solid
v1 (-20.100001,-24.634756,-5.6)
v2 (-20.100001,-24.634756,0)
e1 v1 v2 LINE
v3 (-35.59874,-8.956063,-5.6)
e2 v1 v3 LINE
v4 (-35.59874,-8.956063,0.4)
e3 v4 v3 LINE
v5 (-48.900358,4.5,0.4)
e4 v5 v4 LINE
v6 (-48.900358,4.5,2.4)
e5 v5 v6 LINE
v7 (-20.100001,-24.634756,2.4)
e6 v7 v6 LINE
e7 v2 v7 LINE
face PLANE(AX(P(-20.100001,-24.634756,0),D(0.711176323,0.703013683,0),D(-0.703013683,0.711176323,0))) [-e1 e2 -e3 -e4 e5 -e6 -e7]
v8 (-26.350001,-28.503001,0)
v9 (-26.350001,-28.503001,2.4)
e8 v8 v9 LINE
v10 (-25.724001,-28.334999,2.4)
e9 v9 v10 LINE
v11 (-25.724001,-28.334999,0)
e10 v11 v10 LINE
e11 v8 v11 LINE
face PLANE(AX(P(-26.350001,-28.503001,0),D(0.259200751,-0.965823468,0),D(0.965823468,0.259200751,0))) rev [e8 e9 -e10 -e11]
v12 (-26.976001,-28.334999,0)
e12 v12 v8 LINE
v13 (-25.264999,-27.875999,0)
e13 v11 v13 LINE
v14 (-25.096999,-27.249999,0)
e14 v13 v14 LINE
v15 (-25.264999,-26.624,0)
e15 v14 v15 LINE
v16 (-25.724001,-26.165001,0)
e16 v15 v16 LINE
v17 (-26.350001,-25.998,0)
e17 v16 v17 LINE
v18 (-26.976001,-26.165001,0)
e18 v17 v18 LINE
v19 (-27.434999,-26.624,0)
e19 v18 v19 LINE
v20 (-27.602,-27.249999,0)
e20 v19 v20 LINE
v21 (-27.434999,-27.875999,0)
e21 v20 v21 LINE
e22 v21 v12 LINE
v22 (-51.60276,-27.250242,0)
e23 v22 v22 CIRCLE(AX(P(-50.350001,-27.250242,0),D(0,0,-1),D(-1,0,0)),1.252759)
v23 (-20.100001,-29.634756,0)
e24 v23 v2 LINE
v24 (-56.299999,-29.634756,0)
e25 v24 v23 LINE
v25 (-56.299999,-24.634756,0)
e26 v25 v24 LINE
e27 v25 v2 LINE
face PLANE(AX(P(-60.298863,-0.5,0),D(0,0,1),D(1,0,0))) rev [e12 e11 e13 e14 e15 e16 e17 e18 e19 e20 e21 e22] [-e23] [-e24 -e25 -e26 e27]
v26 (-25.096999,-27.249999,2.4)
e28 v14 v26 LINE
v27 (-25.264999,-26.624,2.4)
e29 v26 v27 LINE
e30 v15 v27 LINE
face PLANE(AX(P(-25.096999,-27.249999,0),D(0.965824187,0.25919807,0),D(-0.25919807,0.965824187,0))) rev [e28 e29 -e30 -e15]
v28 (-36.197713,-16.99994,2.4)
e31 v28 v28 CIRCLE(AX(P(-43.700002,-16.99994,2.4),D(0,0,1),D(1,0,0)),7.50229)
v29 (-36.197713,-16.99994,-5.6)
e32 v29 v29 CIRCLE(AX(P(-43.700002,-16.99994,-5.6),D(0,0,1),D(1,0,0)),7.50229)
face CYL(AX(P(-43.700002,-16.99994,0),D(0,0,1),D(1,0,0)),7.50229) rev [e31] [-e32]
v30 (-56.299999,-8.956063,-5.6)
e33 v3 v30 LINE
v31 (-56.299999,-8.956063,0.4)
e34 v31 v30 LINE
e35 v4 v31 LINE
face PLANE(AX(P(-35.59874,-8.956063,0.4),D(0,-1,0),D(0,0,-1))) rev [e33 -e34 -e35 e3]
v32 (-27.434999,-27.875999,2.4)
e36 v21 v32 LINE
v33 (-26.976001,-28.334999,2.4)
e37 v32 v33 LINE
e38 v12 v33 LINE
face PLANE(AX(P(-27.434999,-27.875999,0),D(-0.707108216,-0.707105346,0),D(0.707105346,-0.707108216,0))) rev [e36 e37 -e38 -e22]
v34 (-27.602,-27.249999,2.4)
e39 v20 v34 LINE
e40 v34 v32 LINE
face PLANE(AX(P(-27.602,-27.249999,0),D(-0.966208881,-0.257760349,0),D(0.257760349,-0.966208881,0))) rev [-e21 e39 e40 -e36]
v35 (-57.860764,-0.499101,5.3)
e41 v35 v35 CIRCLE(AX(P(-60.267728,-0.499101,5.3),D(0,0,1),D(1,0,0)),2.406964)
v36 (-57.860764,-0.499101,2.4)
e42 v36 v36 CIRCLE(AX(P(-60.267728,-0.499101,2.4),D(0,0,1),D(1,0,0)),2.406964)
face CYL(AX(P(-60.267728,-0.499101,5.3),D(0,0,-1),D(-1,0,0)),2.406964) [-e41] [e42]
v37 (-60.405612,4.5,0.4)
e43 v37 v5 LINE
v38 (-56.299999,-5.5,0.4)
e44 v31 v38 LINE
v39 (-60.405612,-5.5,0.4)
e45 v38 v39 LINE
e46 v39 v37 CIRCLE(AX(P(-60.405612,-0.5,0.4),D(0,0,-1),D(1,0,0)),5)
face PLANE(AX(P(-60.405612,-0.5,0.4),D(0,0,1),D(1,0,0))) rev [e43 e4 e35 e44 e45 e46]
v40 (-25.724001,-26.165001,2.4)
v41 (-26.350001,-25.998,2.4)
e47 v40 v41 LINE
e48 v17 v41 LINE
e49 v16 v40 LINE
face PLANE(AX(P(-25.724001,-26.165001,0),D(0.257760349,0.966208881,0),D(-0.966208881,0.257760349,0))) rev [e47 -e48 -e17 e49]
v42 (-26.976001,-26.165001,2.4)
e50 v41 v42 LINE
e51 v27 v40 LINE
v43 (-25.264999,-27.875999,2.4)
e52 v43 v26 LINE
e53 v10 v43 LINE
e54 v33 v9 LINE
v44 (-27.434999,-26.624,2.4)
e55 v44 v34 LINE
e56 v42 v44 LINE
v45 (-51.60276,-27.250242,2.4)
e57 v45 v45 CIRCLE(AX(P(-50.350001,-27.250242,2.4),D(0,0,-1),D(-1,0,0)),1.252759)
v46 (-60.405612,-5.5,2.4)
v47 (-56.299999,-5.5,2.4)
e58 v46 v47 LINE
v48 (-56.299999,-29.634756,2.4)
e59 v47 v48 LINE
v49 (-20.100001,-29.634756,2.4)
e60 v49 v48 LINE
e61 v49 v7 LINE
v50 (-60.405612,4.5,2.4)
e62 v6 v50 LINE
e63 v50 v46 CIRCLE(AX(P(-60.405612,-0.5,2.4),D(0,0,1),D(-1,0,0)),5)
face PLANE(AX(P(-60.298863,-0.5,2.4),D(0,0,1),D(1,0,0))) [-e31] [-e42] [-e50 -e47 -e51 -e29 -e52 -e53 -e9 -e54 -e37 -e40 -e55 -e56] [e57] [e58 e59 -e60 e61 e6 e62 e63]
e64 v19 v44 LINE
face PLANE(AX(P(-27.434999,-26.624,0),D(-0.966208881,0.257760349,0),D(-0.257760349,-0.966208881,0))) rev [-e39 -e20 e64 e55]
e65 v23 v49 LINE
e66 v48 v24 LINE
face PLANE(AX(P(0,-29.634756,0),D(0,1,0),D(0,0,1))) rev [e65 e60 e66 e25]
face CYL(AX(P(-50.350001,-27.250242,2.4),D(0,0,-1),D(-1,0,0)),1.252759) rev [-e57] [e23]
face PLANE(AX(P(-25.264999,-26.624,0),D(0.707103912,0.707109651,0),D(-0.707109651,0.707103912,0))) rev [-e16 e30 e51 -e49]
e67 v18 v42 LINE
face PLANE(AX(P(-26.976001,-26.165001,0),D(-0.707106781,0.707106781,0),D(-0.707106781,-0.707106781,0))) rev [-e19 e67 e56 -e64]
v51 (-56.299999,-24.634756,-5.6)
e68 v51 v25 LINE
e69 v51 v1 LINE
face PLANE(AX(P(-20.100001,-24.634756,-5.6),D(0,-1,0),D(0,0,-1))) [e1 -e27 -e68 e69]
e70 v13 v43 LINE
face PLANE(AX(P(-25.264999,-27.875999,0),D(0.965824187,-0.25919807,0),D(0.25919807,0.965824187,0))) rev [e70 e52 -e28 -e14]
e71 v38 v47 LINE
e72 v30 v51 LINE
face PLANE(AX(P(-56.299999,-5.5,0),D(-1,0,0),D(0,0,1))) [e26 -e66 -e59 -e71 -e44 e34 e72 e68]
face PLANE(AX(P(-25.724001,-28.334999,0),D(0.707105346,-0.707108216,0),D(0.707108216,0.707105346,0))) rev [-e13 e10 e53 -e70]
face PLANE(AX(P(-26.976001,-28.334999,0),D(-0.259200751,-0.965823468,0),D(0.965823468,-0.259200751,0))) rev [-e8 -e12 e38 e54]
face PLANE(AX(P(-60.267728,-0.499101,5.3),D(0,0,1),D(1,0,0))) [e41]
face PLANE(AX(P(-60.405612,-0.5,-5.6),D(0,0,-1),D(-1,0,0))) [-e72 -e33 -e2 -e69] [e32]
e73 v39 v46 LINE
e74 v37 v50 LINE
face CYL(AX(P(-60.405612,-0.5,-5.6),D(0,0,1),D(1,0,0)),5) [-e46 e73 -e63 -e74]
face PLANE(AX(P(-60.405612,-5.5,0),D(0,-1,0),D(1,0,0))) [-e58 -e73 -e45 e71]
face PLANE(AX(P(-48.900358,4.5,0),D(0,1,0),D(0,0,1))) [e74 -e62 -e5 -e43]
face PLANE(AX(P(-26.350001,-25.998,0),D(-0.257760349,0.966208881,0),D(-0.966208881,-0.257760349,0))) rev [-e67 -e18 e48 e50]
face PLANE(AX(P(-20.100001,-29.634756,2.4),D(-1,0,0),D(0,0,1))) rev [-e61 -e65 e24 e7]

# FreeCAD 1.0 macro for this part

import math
import FreeCAD as App
import Part
import Sketcher

V = App.Vector
Q = App.Units.Quantity


def add_polygon(sketch, points):
    """Adds a closed chain of lines whose ends are joined by coincident constraints."""
    first, n = sketch.GeometryCount, len(points)
    for a, b in zip(points, points[1:] + points[:1]):
        sketch.addGeometry(Part.LineSegment(App.Vector(*a, 0), App.Vector(*b, 0)), False)
    for i in range(n):
        sketch.addConstraint(Sketcher.Constraint("Coincident", first + i, 2, first + (i + 1) % n, 1))

doc = App.newDocument("Part")
body = doc.addObject("PartDesign::Body", "Body")

sketch1 = body.newObject("Sketcher::SketchObject", "Sketch")
sketch1.AttachmentSupport = (doc.getObject("XY_Plane"), [""])
sketch1.MapMode = "FlatFace"
sketch1.AttachmentOffset = App.Placement(V(0, 0, 2.4), App.Rotation())
sketch1.addGeometry([
    Part.LineSegment(V(-20.1, -24.6, 0), V(-48.9, 4.5, 0)),
    Part.LineSegment(V(-48.9, 4.5, 0), V(-60.4, 4.5, 0)),
    Part.ArcOfCircle(Part.Circle(V(-60.3, -0.5, 0), V(0, 0, 1), 5), math.radians(91), math.radians(269)),
    Part.LineSegment(V(-60.4, -5.5, 0), V(-56.3, -5.5, 0)),
    Part.LineSegment(V(-56.3, -5.5, 0), V(-56.3, -24.6, 0)),
    Part.LineSegment(V(-56.3, -24.6, 0), V(-20.1, -24.6, 0)),
], False)
sketch1.addConstraint([
    Sketcher.Constraint("Coincident", 0, 2, 1, 1),
    Sketcher.Constraint("Coincident", 1, 2, 2, 1),
    Sketcher.Constraint("Coincident", 2, 2, 3, 1),
    Sketcher.Constraint("Coincident", 3, 2, 4, 1),
    Sketcher.Constraint("Coincident", 4, 2, 5, 1),
    Sketcher.Constraint("Coincident", 5, 2, 0, 1),
    Sketcher.Constraint("Horizontal", 1),
    Sketcher.Constraint("Horizontal", 3),
    Sketcher.Constraint("Vertical", 4),
    Sketcher.Constraint("Horizontal", 5),
    Sketcher.Constraint("Vertical", 1, 2, 2, 2),
    Sketcher.Constraint("DistanceX", 5, 1, 5, 2, Q("36.199998 mm")),
    Sketcher.Constraint("DistanceY", 2, 3, 0, 2, Q("5 mm")),
    Sketcher.Constraint("DistanceY", 2, 3, -1, 1, Q("0.5 mm")),
    Sketcher.Constraint("DistanceX", 3, 2, -1, 1, Q("56.299999 mm")),
    Sketcher.Constraint("Radius", 2, Q("5.001139 mm")),
    Sketcher.Constraint("DistanceX", 1, 2, 1, 1, Q("11.505254 mm")),
    Sketcher.Constraint("DistanceX", 3, 1, 3, 2, Q("4.105613 mm")),
    Sketcher.Constraint("DistanceY", 4, 2, 4, 1, Q("19.134756 mm")),
])
pad1 = body.newObject("PartDesign::Pad", "Pad")
pad1.Profile = sketch1
pad1.Length = 2.4
pad1.Reversed = True

sketch2 = body.newObject("Sketcher::SketchObject", "Sketch001")
sketch2.AttachmentSupport = (doc.getObject("XZ_Plane"), [""])
sketch2.MapMode = "FlatFace"
sketch2.AttachmentOffset = App.Placement(V(0, 0, 24.634756), App.Rotation())
add_polygon(sketch2, [(-20.1, 0), (-20.1, 2.4), (-56.3, 2.4), (-56.3, 0)])
sketch2.addConstraint([
    Sketcher.Constraint("Vertical", 0),
    Sketcher.Constraint("Horizontal", 1),
    Sketcher.Constraint("Vertical", 2),
    Sketcher.Constraint("Horizontal", 3),
    Sketcher.Constraint("PointOnObject", 2, 2, -1),
    Sketcher.Constraint("DistanceX", 1, 2, 1, 1, Q("36.199998 mm")),
    Sketcher.Constraint("DistanceY", 0, 1, 0, 2, Q("2.4 mm")),
    Sketcher.Constraint("DistanceX", 0, 2, -1, 1, Q("20.100001 mm")),
])
pad2 = body.newObject("PartDesign::Pad", "Pad001")
pad2.Profile = sketch2
pad2.Length = 5

sketch3 = body.newObject("Sketcher::SketchObject", "Sketch002")
sketch3.AttachmentSupport = (doc.getObject("XY_Plane"), [""])
sketch3.MapMode = "FlatFace"
sketch3.AttachmentOffset = App.Placement(V(0, 0, 2.4), App.Rotation())
sketch3.addGeometry(Part.Circle(V(-44, -17, 0), V(0, 0, 1), 8), False)
sketch3.addConstraint([
    Sketcher.Constraint("Diameter", 0, Q("15.004579 mm")),
    Sketcher.Constraint("DistanceY", 0, 3, -1, 1, Q("16.99994 mm")),
    Sketcher.Constraint("DistanceX", 0, 3, -1, 1, Q("43.700002 mm")),
])
pocket1 = body.newObject("PartDesign::Pocket", "Pocket")
pocket1.Profile = sketch3
pocket1.Type = "ThroughAll"

sketch4 = body.newObject("Sketcher::SketchObject", "Sketch003")
sketch4.AttachmentSupport = (doc.getObject("XY_Plane"), [""])
sketch4.MapMode = "FlatFace"
sketch4.AttachmentOffset = App.Placement(V(0, 0, 2.4), App.Rotation())
add_polygon(sketch4, [(-26.4, -28.5), (-25.7, -28.3), (-25.3, -27.9), (-25.1, -27.2), (-25.3, -26.6), (-25.7, -26.2), (-26.4, -26), (-27, -26.2), (-27.4, -26.6), (-27.6, -27.2), (-27.4, -27.9), (-27, -28.3)])
sketch4.addConstraint([
    Sketcher.Constraint("Perpendicular", 5, 8),
    Sketcher.Constraint("Perpendicular", 6, 9),
    Sketcher.Constraint("Perpendicular", 1, 10),
    Sketcher.Constraint("Horizontal", 4, 2, 6, 2),
    Sketcher.Constraint("Horizontal", 3, 2, 7, 2),
    Sketcher.Constraint("Horizontal", 2, 2, 8, 2),
    Sketcher.Constraint("Horizontal", 1, 2, 9, 2),
    Sketcher.Constraint("Horizontal", 0, 2, 10, 2),
    Sketcher.Constraint("Vertical", 1, 2, 3, 2),
    Sketcher.Constraint("Vertical", 0, 2, 4, 2),
    Sketcher.Constraint("Vertical", 7, 2, 9, 2),
    Sketcher.Constraint("Vertical", 6, 2, 10, 2),
    Sketcher.Constraint("Vertical", 5, 2, 11, 2),
    Sketcher.Constraint("Equal", 0, 2),
    Sketcher.Constraint("Equal", 2, 3),
    Sketcher.Constraint("Equal", 1, 4),
    Sketcher.Constraint("Equal", 6, 8),
    Sketcher.Constraint("Equal", 4, 10),
    Sketcher.Constraint("DistanceY", 2, 2, -1, 1, Q("27.249999 mm")),
    Sketcher.Constraint("DistanceX", 5, 2, -1, 1, Q("26.350001 mm")),
    Sketcher.Constraint("DistanceY", 0, 2, 4, 2, Q("2.169998 mm")),
    Sketcher.Constraint("DistanceX", 0, 2, -1, 1, Q("25.724001 mm")),
    Sketcher.Constraint("DistanceX", 2, 2, -1, 1, Q("25.096999 mm")),
    Sketcher.Constraint("DistanceY", 5, 2, -1, 1, Q("25.998 mm")),
])
pocket2 = body.newObject("PartDesign::Pocket", "Pocket001")
pocket2.Profile = sketch4
pocket2.Type = "ThroughAll"

sketch5 = body.newObject("Sketcher::SketchObject", "Sketch004")
sketch5.AttachmentSupport = (doc.getObject("XY_Plane"), [""])
sketch5.MapMode = "FlatFace"
sketch5.addGeometry(Part.Circle(V(-50.4, -27.3, 0), V(0, 0, 1), 1.3), False)
sketch5.addConstraint([
    Sketcher.Constraint("DistanceX", 0, 3, -1, 1, Q("50.350001 mm")),
    Sketcher.Constraint("Diameter", 0, Q("2.505518 mm")),
    Sketcher.Constraint("DistanceY", 0, 3, -1, 1, Q("27.250242 mm")),
])
pocket3 = body.newObject("PartDesign::Pocket", "Pocket002")
pocket3.Profile = sketch5
pocket3.Type = "ThroughAll"
pocket3.Reversed = True

sketch6 = body.newObject("Sketcher::SketchObject", "Sketch005")
sketch6.AttachmentSupport = (doc.getObject("XY_Plane"), [""])
sketch6.MapMode = "FlatFace"
sketch6.AttachmentOffset = App.Placement(V(0, 0, 2.4), App.Rotation())
sketch6.addGeometry(Part.Circle(V(-60.3, -0.5, 0), V(0, 0, 1), 2.4), False)
sketch6.addConstraint([
    Sketcher.Constraint("Diameter", 0, Q("4.813929 mm")),
    Sketcher.Constraint("DistanceY", 0, 3, -1, 1, Q("0.499101 mm")),
    Sketcher.Constraint("DistanceX", 0, 3, -1, 1, Q("60.267728 mm")),
])
pad3 = body.newObject("PartDesign::Pad", "Pad002")
pad3.Profile = sketch6
pad3.Length = 2.9

sketch7 = body.newObject("Sketcher::SketchObject", "Sketch006")
sketch7.AttachmentSupport = (doc.getObject("XY_Plane"), [""])
sketch7.MapMode = "FlatFace"
sketch7.AttachmentOffset = App.Placement(V(0, 0, 2.4), App.Rotation())
sketch7.addGeometry([
    Part.LineSegment(V(-56.3, -5.5, 0), V(-56.3, -24.6, 0)),
    Part.LineSegment(V(-56.3, -24.6, 0), V(-20.1, -24.6, 0)),
    Part.LineSegment(V(-20.1, -24.6, 0), V(-48.9, 4.5, 0)),
    Part.LineSegment(V(-48.9, 4.5, 0), V(-60.4, 4.5, 0)),
    Part.ArcOfCircle(Part.Circle(V(-60.4, -0.5, 0), V(0, 0, 1), 5), math.radians(90), math.radians(270)),
    Part.LineSegment(V(-60.4, -5.5, 0), V(-56.3, -5.5, 0)),
    Part.Circle(V(-43.7, -17, 0), V(0, 0, 1), 7.5),
], False)
sketch7.addConstraint([
    Sketcher.Constraint("Coincident", 0, 2, 1, 1),
    Sketcher.Constraint("Coincident", 1, 2, 2, 1),
    Sketcher.Constraint("Coincident", 2, 2, 3, 1),
    Sketcher.Constraint("Tangent", 3, 2, 4, 1),
    Sketcher.Constraint("Tangent", 4, 2, 5, 1),
    Sketcher.Constraint("Coincident", 5, 2, 0, 1),
    Sketcher.Constraint("Vertical", 0),
    Sketcher.Constraint("Horizontal", 1),
    Sketcher.Constraint("Horizontal", 3),
    Sketcher.Constraint("Horizontal", 5),
    Sketcher.Constraint("Radius", 4, Q("5 mm")),
    Sketcher.Constraint("DistanceX", 1, 1, 1, 2, Q("36.199998 mm")),
    Sketcher.Constraint("DistanceY", 4, 3, -1, 1, Q("0.5 mm")),
    Sketcher.Constraint("DistanceX", 0, 2, -1, 1, Q("56.299999 mm")),
    Sketcher.Constraint("DistanceX", 6, 3, 1, 2, Q("23.600001 mm")),
    Sketcher.Constraint("Diameter", 6, Q("15.004579 mm")),
    Sketcher.Constraint("DistanceX", 3, 2, 3, 1, Q("11.505254 mm")),
    Sketcher.Constraint("DistanceX", 5, 1, 5, 2, Q("4.105613 mm")),
    Sketcher.Constraint("DistanceY", 0, 2, 0, 1, Q("19.134756 mm")),
    Sketcher.Constraint("DistanceY", 6, 3, -1, 1, Q("16.99994 mm")),
])
pad4 = body.newObject("PartDesign::Pad", "Pad003")
pad4.Profile = sketch7
pad4.Length = 8
pad4.Reversed = True

sketch8 = body.newObject("Sketcher::SketchObject", "Sketch007")
sketch8.AttachmentSupport = (doc.getObject("XY_Plane"), [""])
sketch8.MapMode = "FlatFace"
sketch8.AttachmentOffset = App.Placement(V(0, 0, 0.4), App.Rotation())
sketch8.addGeometry([
    Part.LineSegment(V(-56.3, -9, 0), V(-56.3, -5.5, 0)),
    Part.LineSegment(V(-56.3, -5.5, 0), V(-60.4, -5.5, 0)),
    Part.ArcOfCircle(Part.Circle(V(-60.4, -0.5, 0), V(0, 0, 1), 5), math.radians(90), math.radians(270)),
    Part.LineSegment(V(-60.4, 4.5, 0), V(-48.9, 4.5, 0)),
    Part.LineSegment(V(-48.9, 4.5, 0), V(-35.6, -9, 0)),
    Part.LineSegment(V(-35.6, -9, 0), V(-56.3, -9, 0)),
], False)
sketch8.addConstraint([
    Sketcher.Constraint("Coincident", 0, 2, 1, 1),
    Sketcher.Constraint("Tangent", 1, 2, 2, 2),
    Sketcher.Constraint("Tangent", 2, 1, 3, 1),
    Sketcher.Constraint("Coincident", 3, 2, 4, 1),
    Sketcher.Constraint("Coincident", 4, 2, 5, 1),
    Sketcher.Constraint("Coincident", 5, 2, 0, 1),
    Sketcher.Constraint("Vertical", 0),
    Sketcher.Constraint("Horizontal", 1),
    Sketcher.Constraint("Horizontal", 3),
    Sketcher.Constraint("Horizontal", 5),
    Sketcher.Constraint("Radius", 2, Q("5 mm")),
    Sketcher.Constraint("DistanceY", 2, 3, -1, 1, Q("0.5 mm")),
    Sketcher.Constraint("DistanceX", 0, 2, -1, 1, Q("56.299999 mm")),
    Sketcher.Constraint("DistanceX", 5, 2, 5, 1, Q("20.701259 mm")),
    Sketcher.Constraint("DistanceX", 1, 2, 1, 1, Q("4.105613 mm")),
    Sketcher.Constraint("DistanceX", 3, 1, 3, 2, Q("11.505254 mm")),
    Sketcher.Constraint("DistanceY", 0, 1, 0, 2, Q("3.456063 mm")),
])
pocket4 = body.newObject("PartDesign::Pocket", "Pocket003")
pocket4.Profile = sketch8
pocket4.Length = 6

doc.recompute()
